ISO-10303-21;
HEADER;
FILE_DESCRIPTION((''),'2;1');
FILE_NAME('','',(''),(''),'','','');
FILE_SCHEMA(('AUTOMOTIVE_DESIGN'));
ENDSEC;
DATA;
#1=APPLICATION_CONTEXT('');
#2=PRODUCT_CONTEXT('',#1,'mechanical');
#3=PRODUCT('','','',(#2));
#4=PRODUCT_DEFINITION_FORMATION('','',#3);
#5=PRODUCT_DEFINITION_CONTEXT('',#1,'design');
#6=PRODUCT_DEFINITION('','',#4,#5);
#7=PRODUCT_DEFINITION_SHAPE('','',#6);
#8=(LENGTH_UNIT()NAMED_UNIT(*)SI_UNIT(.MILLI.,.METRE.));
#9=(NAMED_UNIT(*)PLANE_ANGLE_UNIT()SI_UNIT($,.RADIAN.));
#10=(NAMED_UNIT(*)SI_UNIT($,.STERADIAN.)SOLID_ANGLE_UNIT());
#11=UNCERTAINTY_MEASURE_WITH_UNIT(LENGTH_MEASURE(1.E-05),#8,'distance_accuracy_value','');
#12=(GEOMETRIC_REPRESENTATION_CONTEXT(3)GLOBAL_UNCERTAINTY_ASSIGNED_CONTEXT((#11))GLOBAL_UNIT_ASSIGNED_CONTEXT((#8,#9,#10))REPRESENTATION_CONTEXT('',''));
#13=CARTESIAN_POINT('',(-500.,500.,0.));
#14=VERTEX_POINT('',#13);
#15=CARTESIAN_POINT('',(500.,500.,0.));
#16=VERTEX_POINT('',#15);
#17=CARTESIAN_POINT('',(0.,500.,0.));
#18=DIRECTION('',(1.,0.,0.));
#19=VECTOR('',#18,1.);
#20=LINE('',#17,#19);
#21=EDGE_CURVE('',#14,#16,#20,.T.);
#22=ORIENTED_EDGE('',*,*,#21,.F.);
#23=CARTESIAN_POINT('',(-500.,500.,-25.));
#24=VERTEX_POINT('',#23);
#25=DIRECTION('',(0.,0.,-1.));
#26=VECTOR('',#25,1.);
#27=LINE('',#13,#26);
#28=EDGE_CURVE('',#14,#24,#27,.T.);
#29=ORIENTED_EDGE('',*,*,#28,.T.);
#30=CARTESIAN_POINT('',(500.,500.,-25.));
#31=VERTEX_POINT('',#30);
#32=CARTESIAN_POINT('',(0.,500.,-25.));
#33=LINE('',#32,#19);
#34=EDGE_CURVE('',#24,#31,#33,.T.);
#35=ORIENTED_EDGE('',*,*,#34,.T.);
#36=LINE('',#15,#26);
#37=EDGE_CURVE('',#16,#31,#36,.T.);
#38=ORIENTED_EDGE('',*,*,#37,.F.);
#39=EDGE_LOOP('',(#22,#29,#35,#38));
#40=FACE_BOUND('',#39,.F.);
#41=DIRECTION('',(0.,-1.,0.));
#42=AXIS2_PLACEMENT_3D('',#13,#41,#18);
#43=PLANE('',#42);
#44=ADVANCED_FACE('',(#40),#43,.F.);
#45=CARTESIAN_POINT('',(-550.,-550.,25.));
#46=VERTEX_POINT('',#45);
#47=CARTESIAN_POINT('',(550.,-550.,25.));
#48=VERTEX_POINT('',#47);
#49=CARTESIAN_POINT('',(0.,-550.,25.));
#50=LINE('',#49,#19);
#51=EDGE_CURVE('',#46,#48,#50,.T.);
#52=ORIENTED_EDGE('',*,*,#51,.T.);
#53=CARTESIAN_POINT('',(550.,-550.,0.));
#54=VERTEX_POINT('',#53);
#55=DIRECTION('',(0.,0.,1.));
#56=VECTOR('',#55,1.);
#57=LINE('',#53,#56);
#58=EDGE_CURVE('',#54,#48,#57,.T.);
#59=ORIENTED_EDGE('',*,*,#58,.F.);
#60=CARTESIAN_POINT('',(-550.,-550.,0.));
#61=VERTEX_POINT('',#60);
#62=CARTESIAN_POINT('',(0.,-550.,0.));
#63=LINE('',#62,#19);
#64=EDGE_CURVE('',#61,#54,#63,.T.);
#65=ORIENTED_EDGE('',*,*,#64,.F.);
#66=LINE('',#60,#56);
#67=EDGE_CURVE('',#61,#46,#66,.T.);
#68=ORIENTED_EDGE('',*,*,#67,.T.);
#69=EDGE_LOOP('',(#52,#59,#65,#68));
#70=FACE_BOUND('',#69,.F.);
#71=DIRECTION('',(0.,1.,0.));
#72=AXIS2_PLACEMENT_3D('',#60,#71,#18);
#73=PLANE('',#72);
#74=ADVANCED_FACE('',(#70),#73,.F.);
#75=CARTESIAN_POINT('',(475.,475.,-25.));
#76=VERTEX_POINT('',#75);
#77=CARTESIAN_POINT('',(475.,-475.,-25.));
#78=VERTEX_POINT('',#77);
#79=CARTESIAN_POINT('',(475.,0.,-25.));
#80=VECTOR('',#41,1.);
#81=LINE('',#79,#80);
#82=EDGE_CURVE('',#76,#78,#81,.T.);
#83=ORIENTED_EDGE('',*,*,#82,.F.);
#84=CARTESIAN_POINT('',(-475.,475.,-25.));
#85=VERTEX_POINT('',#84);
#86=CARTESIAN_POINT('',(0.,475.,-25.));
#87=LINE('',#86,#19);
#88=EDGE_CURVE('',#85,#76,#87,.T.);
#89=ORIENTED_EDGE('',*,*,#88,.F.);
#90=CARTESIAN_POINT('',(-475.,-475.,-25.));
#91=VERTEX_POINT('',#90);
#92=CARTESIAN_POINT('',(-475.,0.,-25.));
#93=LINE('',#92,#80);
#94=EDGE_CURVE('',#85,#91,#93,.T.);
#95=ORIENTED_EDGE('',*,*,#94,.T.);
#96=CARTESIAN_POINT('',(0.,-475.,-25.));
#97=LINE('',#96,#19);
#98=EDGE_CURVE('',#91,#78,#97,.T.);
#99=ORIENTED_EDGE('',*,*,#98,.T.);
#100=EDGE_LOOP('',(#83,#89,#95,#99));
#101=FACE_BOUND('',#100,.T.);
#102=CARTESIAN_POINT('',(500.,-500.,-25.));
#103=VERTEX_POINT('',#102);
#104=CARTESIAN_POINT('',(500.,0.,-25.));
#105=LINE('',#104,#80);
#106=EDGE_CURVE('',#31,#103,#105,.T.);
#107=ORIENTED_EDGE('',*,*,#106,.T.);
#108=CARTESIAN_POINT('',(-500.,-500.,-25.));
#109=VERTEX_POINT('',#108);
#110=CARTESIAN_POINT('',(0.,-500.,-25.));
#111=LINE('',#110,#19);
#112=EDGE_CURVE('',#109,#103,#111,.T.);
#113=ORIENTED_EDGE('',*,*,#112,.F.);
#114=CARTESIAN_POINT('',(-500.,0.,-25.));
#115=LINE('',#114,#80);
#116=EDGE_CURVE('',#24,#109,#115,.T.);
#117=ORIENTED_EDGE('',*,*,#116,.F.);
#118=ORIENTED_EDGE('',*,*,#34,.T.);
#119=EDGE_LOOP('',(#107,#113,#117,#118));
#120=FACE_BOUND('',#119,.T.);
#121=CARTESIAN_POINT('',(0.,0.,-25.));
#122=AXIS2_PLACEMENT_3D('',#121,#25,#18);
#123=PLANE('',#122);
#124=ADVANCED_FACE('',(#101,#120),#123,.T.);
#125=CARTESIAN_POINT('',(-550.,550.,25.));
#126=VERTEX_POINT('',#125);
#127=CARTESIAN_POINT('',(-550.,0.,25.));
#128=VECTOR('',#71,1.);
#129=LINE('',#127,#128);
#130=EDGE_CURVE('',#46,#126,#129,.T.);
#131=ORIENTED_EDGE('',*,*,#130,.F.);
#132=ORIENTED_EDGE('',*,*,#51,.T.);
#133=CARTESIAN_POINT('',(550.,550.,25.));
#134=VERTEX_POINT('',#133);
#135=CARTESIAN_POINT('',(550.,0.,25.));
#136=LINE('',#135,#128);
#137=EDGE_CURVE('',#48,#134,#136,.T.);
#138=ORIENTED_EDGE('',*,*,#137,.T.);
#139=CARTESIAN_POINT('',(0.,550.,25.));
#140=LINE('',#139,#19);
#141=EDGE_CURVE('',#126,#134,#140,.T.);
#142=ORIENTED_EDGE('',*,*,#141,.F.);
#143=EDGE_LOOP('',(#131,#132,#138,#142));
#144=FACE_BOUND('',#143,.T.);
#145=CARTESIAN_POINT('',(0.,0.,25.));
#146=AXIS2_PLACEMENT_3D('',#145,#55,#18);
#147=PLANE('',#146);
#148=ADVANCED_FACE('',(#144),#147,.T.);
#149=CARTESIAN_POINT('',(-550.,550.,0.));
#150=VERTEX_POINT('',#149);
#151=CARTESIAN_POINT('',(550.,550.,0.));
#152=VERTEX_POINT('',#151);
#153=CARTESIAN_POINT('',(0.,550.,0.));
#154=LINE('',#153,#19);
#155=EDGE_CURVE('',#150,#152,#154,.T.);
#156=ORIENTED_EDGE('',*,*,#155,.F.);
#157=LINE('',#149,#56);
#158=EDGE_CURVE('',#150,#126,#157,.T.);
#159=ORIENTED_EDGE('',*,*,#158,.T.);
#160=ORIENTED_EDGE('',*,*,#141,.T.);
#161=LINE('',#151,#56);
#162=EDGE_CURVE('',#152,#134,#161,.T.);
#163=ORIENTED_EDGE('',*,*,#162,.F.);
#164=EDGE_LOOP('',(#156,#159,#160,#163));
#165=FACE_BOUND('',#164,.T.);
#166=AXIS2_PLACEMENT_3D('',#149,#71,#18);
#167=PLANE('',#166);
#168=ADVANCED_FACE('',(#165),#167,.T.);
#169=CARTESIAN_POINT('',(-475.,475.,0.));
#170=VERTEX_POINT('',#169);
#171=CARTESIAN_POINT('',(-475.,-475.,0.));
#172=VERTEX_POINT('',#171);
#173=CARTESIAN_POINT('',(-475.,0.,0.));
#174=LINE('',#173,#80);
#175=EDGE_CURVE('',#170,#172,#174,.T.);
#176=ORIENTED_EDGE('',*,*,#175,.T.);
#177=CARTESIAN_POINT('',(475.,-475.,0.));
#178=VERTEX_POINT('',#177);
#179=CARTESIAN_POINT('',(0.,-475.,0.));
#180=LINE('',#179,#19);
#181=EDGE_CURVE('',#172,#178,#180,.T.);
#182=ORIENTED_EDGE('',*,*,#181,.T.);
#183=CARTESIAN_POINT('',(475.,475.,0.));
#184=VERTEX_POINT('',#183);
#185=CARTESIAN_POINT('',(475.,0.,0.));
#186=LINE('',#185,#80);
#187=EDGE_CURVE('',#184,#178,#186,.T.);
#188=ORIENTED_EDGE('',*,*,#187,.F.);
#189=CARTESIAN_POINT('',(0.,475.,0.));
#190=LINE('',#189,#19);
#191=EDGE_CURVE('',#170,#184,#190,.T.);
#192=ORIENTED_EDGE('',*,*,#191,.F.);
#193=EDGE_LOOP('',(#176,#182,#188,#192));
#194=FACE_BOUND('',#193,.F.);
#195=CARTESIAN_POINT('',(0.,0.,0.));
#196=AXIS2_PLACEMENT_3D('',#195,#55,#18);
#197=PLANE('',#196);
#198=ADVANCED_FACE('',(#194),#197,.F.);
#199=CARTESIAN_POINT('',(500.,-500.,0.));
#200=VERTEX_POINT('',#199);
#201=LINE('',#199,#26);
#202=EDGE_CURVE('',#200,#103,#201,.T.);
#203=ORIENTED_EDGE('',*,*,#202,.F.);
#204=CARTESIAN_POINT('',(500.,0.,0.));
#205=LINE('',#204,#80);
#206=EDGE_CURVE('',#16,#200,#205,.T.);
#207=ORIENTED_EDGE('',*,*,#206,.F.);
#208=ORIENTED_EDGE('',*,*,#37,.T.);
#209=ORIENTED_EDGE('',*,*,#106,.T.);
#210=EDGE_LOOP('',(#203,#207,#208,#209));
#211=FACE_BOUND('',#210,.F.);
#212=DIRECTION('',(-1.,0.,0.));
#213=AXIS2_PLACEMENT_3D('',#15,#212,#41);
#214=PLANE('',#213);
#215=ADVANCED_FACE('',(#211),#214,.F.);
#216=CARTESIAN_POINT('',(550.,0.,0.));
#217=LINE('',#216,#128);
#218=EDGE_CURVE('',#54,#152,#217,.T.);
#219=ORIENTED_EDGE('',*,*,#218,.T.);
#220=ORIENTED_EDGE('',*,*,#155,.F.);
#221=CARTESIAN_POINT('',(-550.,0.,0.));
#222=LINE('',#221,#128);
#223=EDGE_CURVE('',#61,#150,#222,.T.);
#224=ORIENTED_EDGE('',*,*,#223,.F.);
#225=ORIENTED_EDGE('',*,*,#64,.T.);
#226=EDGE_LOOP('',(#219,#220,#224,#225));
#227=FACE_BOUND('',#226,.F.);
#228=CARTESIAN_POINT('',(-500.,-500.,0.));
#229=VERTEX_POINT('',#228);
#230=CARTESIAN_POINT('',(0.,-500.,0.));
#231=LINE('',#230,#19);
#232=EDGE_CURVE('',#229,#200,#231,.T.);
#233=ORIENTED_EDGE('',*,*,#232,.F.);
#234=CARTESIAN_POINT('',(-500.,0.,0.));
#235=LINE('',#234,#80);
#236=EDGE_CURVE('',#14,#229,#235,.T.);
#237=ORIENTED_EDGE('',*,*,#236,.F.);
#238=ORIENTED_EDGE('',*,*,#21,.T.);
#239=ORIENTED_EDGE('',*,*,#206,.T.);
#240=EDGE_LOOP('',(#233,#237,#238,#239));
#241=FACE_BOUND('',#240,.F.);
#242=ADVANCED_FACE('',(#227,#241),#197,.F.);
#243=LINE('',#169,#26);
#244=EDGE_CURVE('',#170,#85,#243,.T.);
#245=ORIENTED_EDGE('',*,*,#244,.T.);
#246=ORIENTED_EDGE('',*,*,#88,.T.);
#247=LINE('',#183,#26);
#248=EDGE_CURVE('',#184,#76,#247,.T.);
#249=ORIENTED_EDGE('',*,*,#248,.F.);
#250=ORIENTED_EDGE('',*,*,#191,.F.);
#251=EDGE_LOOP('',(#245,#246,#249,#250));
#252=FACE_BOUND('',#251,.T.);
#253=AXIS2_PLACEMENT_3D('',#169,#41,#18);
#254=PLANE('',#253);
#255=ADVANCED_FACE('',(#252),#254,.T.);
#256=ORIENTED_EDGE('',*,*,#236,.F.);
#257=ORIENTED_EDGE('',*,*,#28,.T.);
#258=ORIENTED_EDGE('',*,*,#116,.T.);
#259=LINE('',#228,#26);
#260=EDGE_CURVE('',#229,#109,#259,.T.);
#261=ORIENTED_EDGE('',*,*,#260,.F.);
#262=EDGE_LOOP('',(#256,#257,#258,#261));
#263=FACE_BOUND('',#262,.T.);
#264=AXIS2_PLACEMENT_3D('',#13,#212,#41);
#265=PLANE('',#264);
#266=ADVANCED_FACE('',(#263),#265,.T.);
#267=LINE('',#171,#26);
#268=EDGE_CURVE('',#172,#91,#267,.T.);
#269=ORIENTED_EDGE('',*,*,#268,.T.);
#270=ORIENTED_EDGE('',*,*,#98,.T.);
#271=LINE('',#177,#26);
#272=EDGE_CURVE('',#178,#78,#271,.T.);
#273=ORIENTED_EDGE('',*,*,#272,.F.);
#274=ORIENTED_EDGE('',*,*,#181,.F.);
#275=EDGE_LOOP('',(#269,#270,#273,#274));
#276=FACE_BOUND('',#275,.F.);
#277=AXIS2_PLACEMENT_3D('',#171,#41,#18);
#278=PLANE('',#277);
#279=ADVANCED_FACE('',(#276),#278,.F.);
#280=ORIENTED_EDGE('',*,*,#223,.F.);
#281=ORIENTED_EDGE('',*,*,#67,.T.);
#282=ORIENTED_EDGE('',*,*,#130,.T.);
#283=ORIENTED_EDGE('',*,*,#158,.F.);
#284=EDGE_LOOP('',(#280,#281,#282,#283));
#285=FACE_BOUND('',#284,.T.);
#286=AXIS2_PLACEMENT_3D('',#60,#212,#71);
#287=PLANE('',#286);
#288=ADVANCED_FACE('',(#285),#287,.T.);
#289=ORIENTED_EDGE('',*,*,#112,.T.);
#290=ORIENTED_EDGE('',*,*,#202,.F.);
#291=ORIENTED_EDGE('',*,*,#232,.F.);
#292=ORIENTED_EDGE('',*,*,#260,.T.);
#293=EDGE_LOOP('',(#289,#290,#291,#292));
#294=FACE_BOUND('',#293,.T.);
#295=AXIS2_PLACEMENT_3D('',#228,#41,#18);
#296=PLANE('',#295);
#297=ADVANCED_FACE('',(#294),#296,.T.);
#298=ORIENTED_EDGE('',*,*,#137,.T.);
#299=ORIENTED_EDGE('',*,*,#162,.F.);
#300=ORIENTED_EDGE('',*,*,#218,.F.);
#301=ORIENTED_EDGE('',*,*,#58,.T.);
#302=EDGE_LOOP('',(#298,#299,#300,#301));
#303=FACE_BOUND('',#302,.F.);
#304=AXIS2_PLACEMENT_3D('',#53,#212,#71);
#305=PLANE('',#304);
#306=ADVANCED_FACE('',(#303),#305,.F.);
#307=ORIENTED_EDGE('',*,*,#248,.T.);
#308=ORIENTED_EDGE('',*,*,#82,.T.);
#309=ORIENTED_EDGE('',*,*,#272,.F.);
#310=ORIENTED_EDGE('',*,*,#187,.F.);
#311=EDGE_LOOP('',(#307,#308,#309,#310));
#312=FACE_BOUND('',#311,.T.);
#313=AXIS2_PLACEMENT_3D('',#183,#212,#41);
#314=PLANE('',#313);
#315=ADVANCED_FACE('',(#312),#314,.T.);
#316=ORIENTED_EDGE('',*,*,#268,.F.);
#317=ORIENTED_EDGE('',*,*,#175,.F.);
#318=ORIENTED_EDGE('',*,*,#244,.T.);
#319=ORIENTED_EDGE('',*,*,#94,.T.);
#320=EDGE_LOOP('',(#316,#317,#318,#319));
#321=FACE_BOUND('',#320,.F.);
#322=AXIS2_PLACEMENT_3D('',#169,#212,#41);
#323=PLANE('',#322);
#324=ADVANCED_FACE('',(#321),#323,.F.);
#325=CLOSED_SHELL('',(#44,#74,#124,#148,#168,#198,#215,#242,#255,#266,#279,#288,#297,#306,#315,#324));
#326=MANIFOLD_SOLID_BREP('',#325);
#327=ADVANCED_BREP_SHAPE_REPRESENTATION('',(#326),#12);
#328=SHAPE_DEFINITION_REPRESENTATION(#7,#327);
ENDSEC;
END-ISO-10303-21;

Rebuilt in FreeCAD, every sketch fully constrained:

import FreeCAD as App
import Part
import Sketcher


def add_polygon(sketch, points):
    """Adds a closed chain of lines whose ends are joined by coincident constraints."""
    first, n = sketch.GeometryCount, len(points)
    for a, b in zip(points, points[1:] + points[:1]):
        sketch.addGeometry(Part.LineSegment(App.Vector(*a, 0), App.Vector(*b, 0)), False)
    for i in range(n):
        sketch.addConstraint(Sketcher.Constraint("Coincident", first + i, 2, first + (i + 1) % n, 1))

doc = App.newDocument("Part")
body = doc.addObject("PartDesign::Body", "Body")

sketch1 = doc.addObject("Sketcher::SketchObject", "Sketch")
body.addObject(sketch1)
sketch1.AttachmentSupport = (doc.XY_Plane, [""])
sketch1.MapMode = "FlatFace"
add_polygon(sketch1, [(-550, 550), (-550, -550), (550, -550), (550, 550)])
sketch1.addConstraint([
    Sketcher.Constraint("Vertical", 0),
    Sketcher.Constraint("Horizontal", 1),
    Sketcher.Constraint("Vertical", 2),
    Sketcher.Constraint("Horizontal", 3),
    Sketcher.Constraint("Symmetric", 0, 2, 2, 2, -1, 1),
    Sketcher.Constraint("Equal", 3, 0),
    Sketcher.Constraint("DistanceX", 1, 1, 1, 2, 1100.0),
])
pad1 = doc.addObject("PartDesign::Pad", "Pad")
body.addObject(pad1)
pad1.Profile = sketch1
pad1.Length = 25

sketch2 = doc.addObject("Sketcher::SketchObject", "Sketch001")
body.addObject(sketch2)
sketch2.AttachmentSupport = (doc.XY_Plane, [""])
sketch2.MapMode = "FlatFace"
add_polygon(sketch2, [(-500, -500), (-500, 500), (500, 500), (500, -500)])
add_polygon(sketch2, [(475, 475), (-475, 475), (-475, -475), (475, -475)])
sketch2.addConstraint([
    Sketcher.Constraint("Vertical", 0),
    Sketcher.Constraint("Horizontal", 1),
    Sketcher.Constraint("Vertical", 2),
    Sketcher.Constraint("Horizontal", 3),
    Sketcher.Constraint("Horizontal", 4),
    Sketcher.Constraint("Vertical", 5),
    Sketcher.Constraint("Horizontal", 6),
    Sketcher.Constraint("Vertical", 7),
    Sketcher.Constraint("Symmetric", 0, 2, 2, 2, -1, 1),
    Sketcher.Constraint("Symmetric", 4, 2, 6, 2, -1, 1),
    Sketcher.Constraint("Equal", 3, 0),
    Sketcher.Constraint("Equal", 6, 5),
    Sketcher.Constraint("DistanceX", 1, 1, 1, 2, 1000.0),
    Sketcher.Constraint("DistanceX", 4, 2, 4, 1, 950.0),
])
pad2 = doc.addObject("PartDesign::Pad", "Pad001")
body.addObject(pad2)
pad2.Profile = sketch2
pad2.Length = 25
pad2.Reversed = True

doc.recompute()
